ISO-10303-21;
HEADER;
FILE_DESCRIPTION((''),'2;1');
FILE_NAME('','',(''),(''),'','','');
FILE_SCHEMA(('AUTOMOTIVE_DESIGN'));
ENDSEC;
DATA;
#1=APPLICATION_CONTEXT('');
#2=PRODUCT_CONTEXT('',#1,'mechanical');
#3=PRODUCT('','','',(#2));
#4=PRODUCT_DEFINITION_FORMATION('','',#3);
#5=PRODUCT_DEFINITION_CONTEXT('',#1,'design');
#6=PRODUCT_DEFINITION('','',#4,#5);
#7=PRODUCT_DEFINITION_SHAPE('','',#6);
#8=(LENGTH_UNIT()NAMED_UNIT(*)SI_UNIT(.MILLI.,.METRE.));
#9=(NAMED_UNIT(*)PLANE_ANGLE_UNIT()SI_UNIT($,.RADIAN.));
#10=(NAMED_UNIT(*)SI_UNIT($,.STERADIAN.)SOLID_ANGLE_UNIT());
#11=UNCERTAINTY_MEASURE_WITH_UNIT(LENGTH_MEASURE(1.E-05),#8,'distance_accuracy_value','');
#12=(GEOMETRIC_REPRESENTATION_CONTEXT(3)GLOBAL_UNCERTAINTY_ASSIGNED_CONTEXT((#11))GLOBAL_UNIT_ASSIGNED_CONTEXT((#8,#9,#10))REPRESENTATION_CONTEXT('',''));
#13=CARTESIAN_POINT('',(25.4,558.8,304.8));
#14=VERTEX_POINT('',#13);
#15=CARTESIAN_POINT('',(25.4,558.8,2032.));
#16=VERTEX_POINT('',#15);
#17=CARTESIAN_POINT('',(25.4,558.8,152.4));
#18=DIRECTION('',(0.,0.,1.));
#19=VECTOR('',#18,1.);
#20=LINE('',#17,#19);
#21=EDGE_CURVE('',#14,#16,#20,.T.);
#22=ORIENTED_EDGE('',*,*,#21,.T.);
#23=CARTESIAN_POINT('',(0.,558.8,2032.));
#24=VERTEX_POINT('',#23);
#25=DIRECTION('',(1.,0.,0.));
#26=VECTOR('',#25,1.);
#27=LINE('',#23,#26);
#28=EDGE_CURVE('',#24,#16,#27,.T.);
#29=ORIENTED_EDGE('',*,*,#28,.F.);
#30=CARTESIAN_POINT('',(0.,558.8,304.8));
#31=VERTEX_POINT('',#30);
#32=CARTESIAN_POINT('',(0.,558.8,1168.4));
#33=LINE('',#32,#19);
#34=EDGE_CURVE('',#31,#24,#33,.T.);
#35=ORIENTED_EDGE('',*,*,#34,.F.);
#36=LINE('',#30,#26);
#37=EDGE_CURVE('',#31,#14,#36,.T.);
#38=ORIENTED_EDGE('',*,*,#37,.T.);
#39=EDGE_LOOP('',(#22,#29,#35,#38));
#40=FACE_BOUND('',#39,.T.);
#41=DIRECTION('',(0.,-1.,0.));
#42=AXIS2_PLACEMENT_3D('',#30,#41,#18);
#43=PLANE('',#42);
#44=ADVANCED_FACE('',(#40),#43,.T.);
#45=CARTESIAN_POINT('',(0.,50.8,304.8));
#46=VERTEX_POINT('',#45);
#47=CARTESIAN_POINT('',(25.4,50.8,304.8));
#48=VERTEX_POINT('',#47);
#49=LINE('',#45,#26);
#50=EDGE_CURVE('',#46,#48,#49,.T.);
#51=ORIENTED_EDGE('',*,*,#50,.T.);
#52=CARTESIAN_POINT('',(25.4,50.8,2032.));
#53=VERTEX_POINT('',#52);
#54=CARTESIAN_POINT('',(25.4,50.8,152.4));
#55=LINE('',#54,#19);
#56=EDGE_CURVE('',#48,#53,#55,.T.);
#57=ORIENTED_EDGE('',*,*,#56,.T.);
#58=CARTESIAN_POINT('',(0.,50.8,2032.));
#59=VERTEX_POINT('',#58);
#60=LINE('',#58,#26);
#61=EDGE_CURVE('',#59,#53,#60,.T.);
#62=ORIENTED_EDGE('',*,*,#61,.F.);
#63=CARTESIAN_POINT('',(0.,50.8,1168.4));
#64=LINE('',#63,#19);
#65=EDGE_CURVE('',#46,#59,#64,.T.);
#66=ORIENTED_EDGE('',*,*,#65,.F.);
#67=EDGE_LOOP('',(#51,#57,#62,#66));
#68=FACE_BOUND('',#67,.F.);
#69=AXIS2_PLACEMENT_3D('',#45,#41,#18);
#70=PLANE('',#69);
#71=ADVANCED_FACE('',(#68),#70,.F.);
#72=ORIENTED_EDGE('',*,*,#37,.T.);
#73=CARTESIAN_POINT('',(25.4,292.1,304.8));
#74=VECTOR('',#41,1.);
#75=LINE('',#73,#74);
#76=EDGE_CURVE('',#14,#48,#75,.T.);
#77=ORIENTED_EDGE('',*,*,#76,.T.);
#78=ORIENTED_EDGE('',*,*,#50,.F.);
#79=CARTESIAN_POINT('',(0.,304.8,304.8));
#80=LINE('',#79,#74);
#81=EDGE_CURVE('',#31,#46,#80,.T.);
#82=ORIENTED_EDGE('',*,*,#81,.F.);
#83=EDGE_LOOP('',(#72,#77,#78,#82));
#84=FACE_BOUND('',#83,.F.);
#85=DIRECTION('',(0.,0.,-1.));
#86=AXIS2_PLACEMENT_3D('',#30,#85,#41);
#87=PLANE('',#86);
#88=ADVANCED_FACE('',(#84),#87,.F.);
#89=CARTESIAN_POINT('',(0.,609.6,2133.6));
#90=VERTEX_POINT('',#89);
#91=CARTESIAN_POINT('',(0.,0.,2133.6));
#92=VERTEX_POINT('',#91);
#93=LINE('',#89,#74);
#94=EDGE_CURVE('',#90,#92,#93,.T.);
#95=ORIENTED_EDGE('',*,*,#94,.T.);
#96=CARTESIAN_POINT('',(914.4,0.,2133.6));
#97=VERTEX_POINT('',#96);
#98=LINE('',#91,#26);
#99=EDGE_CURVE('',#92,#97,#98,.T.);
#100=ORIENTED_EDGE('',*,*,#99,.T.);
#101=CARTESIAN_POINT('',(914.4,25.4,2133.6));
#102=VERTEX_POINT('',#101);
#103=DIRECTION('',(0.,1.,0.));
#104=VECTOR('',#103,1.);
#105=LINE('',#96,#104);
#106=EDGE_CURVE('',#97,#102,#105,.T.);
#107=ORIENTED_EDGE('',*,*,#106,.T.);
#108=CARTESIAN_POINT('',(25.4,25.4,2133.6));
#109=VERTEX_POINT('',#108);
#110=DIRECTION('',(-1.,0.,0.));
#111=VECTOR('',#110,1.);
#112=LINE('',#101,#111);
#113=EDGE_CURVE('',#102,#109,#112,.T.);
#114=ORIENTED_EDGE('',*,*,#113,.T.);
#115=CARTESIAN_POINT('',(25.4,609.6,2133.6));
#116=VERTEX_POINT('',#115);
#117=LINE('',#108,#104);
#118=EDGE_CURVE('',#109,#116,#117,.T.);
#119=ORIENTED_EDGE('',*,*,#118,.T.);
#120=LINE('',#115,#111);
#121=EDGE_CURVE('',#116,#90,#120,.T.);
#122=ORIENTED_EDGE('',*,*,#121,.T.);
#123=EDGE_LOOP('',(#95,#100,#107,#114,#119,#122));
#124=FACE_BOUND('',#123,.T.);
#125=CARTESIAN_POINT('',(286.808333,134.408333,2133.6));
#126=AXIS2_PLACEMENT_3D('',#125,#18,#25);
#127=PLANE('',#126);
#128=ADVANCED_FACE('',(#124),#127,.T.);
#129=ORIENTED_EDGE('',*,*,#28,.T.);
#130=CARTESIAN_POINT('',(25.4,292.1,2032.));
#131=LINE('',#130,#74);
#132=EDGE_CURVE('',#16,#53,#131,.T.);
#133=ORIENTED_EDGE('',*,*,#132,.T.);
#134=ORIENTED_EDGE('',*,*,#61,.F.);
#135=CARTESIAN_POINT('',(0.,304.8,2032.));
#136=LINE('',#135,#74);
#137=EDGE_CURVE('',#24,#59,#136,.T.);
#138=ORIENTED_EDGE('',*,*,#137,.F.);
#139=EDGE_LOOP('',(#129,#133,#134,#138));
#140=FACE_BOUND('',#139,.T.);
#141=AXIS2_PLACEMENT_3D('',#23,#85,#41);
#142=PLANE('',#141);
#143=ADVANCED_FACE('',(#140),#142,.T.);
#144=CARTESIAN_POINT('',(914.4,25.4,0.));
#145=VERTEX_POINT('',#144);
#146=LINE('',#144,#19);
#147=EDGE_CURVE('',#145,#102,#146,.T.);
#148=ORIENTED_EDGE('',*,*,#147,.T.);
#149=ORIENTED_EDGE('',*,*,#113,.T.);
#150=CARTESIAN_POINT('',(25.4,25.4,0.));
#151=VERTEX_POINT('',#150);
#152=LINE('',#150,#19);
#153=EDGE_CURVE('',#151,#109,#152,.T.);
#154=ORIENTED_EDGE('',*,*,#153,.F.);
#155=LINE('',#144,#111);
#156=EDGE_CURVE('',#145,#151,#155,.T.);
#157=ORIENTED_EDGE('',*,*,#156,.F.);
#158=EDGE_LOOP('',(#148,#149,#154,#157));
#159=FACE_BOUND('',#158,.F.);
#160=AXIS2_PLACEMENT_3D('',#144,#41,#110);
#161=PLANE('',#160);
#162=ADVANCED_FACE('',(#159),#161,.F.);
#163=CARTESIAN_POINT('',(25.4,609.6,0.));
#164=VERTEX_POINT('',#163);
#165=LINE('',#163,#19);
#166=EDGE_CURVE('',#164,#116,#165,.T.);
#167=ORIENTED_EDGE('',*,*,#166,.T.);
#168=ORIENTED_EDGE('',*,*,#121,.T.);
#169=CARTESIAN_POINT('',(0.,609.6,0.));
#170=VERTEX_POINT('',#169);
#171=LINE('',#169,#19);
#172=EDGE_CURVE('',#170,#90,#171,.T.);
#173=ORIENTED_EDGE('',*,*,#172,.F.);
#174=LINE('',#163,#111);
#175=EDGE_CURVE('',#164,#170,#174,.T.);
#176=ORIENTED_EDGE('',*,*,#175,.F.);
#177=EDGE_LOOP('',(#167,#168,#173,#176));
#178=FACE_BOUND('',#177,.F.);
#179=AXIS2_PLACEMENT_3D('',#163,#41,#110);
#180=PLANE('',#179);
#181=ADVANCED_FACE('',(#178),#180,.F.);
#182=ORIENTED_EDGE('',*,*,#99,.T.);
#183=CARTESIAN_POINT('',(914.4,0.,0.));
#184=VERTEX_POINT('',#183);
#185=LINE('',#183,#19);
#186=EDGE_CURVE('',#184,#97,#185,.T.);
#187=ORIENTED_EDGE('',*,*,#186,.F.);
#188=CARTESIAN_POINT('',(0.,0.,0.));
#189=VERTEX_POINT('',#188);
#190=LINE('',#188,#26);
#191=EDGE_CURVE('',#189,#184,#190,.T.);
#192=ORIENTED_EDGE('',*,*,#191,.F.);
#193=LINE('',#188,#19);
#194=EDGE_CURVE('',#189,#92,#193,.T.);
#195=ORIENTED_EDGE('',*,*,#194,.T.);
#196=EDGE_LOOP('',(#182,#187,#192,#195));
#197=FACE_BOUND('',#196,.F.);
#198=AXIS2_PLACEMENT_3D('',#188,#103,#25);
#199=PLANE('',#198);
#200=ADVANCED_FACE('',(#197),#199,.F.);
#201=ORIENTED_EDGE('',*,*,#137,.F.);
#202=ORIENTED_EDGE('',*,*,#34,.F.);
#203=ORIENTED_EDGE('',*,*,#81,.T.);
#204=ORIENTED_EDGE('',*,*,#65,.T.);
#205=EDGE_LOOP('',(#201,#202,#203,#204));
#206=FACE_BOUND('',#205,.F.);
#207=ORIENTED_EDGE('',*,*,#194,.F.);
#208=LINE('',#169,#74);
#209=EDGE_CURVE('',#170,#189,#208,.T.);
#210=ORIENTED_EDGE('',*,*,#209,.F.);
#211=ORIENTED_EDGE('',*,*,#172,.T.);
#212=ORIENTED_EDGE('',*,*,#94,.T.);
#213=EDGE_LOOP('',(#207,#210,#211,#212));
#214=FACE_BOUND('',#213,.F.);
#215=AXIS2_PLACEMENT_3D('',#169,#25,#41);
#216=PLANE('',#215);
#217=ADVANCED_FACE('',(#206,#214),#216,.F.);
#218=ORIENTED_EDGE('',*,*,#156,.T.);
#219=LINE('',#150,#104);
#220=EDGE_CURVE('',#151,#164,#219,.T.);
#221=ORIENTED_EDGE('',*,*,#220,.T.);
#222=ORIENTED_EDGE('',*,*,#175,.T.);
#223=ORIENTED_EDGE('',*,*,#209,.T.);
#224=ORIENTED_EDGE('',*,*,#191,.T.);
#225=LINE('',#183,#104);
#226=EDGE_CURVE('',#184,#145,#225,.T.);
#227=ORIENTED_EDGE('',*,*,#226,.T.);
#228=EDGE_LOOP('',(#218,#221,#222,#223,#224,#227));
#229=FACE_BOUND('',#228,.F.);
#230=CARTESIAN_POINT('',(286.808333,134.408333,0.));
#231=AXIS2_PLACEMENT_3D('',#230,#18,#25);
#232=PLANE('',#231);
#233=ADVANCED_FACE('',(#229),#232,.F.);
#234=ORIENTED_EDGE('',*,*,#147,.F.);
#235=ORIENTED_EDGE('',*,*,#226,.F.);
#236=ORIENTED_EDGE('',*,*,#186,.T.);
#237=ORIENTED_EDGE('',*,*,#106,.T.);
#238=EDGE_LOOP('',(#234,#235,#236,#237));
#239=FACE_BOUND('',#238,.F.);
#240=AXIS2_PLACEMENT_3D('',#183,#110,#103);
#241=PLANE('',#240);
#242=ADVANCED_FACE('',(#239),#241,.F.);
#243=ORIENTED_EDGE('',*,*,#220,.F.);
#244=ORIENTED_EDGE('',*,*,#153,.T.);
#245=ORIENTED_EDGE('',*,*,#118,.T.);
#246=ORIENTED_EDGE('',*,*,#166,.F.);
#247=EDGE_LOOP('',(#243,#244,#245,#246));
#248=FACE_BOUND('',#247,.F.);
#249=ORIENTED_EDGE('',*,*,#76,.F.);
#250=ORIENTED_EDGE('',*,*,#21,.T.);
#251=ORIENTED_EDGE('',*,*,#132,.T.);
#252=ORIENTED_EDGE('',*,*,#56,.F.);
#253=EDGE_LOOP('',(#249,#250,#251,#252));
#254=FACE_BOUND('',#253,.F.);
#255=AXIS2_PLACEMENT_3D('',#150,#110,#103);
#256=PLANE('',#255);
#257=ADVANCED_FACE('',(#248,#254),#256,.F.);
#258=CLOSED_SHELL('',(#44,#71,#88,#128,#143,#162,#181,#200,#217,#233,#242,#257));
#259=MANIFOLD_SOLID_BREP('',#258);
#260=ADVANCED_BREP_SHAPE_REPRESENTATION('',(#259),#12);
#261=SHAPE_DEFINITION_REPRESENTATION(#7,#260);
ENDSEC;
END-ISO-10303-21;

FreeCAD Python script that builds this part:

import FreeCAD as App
import Part
import Sketcher
from FreeCAD import Vector
Q = App.Units.Quantity

doc = App.newDocument("Part")
body = doc.addObject("PartDesign::Body", "Body")

sketch1 = body.newObject("Sketcher::SketchObject", "Sketch")
sketch1.AttachmentSupport = (doc.getObject("XY_Plane"), [""])
sketch1.MapMode = "FlatFace"
sketch1.addGeometry(Part.LineSegment(Vector(0, 610, 0), Vector(0, 0, 0)), False)
sketch1.addGeometry(Part.LineSegment(Vector(0, 0, 0), Vector(914, 0, 0)), False)
sketch1.addGeometry(Part.LineSegment(Vector(914, 0, 0), Vector(914, 25, 0)), False)
sketch1.addGeometry(Part.LineSegment(Vector(914, 25, 0), Vector(25, 25, 0)), False)
sketch1.addGeometry(Part.LineSegment(Vector(25, 25, 0), Vector(25, 610, 0)), False)
sketch1.addGeometry(Part.LineSegment(Vector(25, 610, 0), Vector(0, 610, 0)), False)
sketch1.addConstraint(Sketcher.Constraint("Coincident", 0, 2, 1, 1))
sketch1.addConstraint(Sketcher.Constraint("Coincident", 1, 2, 2, 1))
sketch1.addConstraint(Sketcher.Constraint("Coincident", 2, 2, 3, 1))
sketch1.addConstraint(Sketcher.Constraint("Coincident", 3, 2, 4, 1))
sketch1.addConstraint(Sketcher.Constraint("Coincident", 4, 2, 5, 1))
sketch1.addConstraint(Sketcher.Constraint("Coincident", 5, 2, 0, 1))
sketch1.addConstraint(Sketcher.Constraint("Vertical", 0))
sketch1.addConstraint(Sketcher.Constraint("Horizontal", 1))
sketch1.addConstraint(Sketcher.Constraint("Vertical", 2))
sketch1.addConstraint(Sketcher.Constraint("Horizontal", 3))
sketch1.addConstraint(Sketcher.Constraint("Vertical", 4))
sketch1.addConstraint(Sketcher.Constraint("Horizontal", 5))
sketch1.addConstraint(Sketcher.Constraint("Coincident", 0, 2, -1, 1))
sketch1.addConstraint(Sketcher.Constraint("Equal", 5, 2))
sketch1.addConstraint(Sketcher.Constraint("DistanceX", 1, 1, 1, 2, Q("36 in")))
sketch1.addConstraint(Sketcher.Constraint("DistanceX", 3, 2, 3, 1, Q("35 in")))
sketch1.addConstraint(Sketcher.Constraint("DistanceY", 0, 2, 0, 1, Q("24 in")))
pad1 = body.newObject("PartDesign::Pad", "Pad")
pad1.Profile = sketch1
pad1.Length = Q("84 in")

sketch2 = body.newObject("Sketcher::SketchObject", "Sketch001")
sketch2.AttachmentSupport = (doc.getObject("YZ_Plane"), [""])
sketch2.MapMode = "FlatFace"
sketch2.addGeometry(Part.LineSegment(Vector(559, 2032, 0), Vector(559, 305, 0)), False)
sketch2.addGeometry(Part.LineSegment(Vector(559, 305, 0), Vector(51, 305, 0)), False)
sketch2.addGeometry(Part.LineSegment(Vector(51, 305, 0), Vector(51, 2032, 0)), False)
sketch2.addGeometry(Part.LineSegment(Vector(51, 2032, 0), Vector(559, 2032, 0)), False)
sketch2.addConstraint(Sketcher.Constraint("Coincident", 0, 2, 1, 1))
sketch2.addConstraint(Sketcher.Constraint("Coincident", 1, 2, 2, 1))
sketch2.addConstraint(Sketcher.Constraint("Coincident", 2, 2, 3, 1))
sketch2.addConstraint(Sketcher.Constraint("Coincident", 3, 2, 0, 1))
sketch2.addConstraint(Sketcher.Constraint("Vertical", 0))
sketch2.addConstraint(Sketcher.Constraint("Horizontal", 1))
sketch2.addConstraint(Sketcher.Constraint("Vertical", 2))
sketch2.addConstraint(Sketcher.Constraint("Horizontal", 3))
sketch2.addConstraint(Sketcher.Constraint("DistanceX", 1, 2, 1, 1, Q("20 in")))
sketch2.addConstraint(Sketcher.Constraint("DistanceY", 0, 2, 0, 1, Q("68 in")))
sketch2.addConstraint(Sketcher.Constraint("DistanceX", -1, 1, 0, 2, Q("22 in")))
sketch2.addConstraint(Sketcher.Constraint("DistanceY", -1, 1, 0, 2, Q("12 in")))
pocket1 = body.newObject("PartDesign::Pocket", "Pocket")
pocket1.Profile = sketch2
pocket1.Type = "ThroughAll"
pocket1.Reversed = True

doc.recompute()
